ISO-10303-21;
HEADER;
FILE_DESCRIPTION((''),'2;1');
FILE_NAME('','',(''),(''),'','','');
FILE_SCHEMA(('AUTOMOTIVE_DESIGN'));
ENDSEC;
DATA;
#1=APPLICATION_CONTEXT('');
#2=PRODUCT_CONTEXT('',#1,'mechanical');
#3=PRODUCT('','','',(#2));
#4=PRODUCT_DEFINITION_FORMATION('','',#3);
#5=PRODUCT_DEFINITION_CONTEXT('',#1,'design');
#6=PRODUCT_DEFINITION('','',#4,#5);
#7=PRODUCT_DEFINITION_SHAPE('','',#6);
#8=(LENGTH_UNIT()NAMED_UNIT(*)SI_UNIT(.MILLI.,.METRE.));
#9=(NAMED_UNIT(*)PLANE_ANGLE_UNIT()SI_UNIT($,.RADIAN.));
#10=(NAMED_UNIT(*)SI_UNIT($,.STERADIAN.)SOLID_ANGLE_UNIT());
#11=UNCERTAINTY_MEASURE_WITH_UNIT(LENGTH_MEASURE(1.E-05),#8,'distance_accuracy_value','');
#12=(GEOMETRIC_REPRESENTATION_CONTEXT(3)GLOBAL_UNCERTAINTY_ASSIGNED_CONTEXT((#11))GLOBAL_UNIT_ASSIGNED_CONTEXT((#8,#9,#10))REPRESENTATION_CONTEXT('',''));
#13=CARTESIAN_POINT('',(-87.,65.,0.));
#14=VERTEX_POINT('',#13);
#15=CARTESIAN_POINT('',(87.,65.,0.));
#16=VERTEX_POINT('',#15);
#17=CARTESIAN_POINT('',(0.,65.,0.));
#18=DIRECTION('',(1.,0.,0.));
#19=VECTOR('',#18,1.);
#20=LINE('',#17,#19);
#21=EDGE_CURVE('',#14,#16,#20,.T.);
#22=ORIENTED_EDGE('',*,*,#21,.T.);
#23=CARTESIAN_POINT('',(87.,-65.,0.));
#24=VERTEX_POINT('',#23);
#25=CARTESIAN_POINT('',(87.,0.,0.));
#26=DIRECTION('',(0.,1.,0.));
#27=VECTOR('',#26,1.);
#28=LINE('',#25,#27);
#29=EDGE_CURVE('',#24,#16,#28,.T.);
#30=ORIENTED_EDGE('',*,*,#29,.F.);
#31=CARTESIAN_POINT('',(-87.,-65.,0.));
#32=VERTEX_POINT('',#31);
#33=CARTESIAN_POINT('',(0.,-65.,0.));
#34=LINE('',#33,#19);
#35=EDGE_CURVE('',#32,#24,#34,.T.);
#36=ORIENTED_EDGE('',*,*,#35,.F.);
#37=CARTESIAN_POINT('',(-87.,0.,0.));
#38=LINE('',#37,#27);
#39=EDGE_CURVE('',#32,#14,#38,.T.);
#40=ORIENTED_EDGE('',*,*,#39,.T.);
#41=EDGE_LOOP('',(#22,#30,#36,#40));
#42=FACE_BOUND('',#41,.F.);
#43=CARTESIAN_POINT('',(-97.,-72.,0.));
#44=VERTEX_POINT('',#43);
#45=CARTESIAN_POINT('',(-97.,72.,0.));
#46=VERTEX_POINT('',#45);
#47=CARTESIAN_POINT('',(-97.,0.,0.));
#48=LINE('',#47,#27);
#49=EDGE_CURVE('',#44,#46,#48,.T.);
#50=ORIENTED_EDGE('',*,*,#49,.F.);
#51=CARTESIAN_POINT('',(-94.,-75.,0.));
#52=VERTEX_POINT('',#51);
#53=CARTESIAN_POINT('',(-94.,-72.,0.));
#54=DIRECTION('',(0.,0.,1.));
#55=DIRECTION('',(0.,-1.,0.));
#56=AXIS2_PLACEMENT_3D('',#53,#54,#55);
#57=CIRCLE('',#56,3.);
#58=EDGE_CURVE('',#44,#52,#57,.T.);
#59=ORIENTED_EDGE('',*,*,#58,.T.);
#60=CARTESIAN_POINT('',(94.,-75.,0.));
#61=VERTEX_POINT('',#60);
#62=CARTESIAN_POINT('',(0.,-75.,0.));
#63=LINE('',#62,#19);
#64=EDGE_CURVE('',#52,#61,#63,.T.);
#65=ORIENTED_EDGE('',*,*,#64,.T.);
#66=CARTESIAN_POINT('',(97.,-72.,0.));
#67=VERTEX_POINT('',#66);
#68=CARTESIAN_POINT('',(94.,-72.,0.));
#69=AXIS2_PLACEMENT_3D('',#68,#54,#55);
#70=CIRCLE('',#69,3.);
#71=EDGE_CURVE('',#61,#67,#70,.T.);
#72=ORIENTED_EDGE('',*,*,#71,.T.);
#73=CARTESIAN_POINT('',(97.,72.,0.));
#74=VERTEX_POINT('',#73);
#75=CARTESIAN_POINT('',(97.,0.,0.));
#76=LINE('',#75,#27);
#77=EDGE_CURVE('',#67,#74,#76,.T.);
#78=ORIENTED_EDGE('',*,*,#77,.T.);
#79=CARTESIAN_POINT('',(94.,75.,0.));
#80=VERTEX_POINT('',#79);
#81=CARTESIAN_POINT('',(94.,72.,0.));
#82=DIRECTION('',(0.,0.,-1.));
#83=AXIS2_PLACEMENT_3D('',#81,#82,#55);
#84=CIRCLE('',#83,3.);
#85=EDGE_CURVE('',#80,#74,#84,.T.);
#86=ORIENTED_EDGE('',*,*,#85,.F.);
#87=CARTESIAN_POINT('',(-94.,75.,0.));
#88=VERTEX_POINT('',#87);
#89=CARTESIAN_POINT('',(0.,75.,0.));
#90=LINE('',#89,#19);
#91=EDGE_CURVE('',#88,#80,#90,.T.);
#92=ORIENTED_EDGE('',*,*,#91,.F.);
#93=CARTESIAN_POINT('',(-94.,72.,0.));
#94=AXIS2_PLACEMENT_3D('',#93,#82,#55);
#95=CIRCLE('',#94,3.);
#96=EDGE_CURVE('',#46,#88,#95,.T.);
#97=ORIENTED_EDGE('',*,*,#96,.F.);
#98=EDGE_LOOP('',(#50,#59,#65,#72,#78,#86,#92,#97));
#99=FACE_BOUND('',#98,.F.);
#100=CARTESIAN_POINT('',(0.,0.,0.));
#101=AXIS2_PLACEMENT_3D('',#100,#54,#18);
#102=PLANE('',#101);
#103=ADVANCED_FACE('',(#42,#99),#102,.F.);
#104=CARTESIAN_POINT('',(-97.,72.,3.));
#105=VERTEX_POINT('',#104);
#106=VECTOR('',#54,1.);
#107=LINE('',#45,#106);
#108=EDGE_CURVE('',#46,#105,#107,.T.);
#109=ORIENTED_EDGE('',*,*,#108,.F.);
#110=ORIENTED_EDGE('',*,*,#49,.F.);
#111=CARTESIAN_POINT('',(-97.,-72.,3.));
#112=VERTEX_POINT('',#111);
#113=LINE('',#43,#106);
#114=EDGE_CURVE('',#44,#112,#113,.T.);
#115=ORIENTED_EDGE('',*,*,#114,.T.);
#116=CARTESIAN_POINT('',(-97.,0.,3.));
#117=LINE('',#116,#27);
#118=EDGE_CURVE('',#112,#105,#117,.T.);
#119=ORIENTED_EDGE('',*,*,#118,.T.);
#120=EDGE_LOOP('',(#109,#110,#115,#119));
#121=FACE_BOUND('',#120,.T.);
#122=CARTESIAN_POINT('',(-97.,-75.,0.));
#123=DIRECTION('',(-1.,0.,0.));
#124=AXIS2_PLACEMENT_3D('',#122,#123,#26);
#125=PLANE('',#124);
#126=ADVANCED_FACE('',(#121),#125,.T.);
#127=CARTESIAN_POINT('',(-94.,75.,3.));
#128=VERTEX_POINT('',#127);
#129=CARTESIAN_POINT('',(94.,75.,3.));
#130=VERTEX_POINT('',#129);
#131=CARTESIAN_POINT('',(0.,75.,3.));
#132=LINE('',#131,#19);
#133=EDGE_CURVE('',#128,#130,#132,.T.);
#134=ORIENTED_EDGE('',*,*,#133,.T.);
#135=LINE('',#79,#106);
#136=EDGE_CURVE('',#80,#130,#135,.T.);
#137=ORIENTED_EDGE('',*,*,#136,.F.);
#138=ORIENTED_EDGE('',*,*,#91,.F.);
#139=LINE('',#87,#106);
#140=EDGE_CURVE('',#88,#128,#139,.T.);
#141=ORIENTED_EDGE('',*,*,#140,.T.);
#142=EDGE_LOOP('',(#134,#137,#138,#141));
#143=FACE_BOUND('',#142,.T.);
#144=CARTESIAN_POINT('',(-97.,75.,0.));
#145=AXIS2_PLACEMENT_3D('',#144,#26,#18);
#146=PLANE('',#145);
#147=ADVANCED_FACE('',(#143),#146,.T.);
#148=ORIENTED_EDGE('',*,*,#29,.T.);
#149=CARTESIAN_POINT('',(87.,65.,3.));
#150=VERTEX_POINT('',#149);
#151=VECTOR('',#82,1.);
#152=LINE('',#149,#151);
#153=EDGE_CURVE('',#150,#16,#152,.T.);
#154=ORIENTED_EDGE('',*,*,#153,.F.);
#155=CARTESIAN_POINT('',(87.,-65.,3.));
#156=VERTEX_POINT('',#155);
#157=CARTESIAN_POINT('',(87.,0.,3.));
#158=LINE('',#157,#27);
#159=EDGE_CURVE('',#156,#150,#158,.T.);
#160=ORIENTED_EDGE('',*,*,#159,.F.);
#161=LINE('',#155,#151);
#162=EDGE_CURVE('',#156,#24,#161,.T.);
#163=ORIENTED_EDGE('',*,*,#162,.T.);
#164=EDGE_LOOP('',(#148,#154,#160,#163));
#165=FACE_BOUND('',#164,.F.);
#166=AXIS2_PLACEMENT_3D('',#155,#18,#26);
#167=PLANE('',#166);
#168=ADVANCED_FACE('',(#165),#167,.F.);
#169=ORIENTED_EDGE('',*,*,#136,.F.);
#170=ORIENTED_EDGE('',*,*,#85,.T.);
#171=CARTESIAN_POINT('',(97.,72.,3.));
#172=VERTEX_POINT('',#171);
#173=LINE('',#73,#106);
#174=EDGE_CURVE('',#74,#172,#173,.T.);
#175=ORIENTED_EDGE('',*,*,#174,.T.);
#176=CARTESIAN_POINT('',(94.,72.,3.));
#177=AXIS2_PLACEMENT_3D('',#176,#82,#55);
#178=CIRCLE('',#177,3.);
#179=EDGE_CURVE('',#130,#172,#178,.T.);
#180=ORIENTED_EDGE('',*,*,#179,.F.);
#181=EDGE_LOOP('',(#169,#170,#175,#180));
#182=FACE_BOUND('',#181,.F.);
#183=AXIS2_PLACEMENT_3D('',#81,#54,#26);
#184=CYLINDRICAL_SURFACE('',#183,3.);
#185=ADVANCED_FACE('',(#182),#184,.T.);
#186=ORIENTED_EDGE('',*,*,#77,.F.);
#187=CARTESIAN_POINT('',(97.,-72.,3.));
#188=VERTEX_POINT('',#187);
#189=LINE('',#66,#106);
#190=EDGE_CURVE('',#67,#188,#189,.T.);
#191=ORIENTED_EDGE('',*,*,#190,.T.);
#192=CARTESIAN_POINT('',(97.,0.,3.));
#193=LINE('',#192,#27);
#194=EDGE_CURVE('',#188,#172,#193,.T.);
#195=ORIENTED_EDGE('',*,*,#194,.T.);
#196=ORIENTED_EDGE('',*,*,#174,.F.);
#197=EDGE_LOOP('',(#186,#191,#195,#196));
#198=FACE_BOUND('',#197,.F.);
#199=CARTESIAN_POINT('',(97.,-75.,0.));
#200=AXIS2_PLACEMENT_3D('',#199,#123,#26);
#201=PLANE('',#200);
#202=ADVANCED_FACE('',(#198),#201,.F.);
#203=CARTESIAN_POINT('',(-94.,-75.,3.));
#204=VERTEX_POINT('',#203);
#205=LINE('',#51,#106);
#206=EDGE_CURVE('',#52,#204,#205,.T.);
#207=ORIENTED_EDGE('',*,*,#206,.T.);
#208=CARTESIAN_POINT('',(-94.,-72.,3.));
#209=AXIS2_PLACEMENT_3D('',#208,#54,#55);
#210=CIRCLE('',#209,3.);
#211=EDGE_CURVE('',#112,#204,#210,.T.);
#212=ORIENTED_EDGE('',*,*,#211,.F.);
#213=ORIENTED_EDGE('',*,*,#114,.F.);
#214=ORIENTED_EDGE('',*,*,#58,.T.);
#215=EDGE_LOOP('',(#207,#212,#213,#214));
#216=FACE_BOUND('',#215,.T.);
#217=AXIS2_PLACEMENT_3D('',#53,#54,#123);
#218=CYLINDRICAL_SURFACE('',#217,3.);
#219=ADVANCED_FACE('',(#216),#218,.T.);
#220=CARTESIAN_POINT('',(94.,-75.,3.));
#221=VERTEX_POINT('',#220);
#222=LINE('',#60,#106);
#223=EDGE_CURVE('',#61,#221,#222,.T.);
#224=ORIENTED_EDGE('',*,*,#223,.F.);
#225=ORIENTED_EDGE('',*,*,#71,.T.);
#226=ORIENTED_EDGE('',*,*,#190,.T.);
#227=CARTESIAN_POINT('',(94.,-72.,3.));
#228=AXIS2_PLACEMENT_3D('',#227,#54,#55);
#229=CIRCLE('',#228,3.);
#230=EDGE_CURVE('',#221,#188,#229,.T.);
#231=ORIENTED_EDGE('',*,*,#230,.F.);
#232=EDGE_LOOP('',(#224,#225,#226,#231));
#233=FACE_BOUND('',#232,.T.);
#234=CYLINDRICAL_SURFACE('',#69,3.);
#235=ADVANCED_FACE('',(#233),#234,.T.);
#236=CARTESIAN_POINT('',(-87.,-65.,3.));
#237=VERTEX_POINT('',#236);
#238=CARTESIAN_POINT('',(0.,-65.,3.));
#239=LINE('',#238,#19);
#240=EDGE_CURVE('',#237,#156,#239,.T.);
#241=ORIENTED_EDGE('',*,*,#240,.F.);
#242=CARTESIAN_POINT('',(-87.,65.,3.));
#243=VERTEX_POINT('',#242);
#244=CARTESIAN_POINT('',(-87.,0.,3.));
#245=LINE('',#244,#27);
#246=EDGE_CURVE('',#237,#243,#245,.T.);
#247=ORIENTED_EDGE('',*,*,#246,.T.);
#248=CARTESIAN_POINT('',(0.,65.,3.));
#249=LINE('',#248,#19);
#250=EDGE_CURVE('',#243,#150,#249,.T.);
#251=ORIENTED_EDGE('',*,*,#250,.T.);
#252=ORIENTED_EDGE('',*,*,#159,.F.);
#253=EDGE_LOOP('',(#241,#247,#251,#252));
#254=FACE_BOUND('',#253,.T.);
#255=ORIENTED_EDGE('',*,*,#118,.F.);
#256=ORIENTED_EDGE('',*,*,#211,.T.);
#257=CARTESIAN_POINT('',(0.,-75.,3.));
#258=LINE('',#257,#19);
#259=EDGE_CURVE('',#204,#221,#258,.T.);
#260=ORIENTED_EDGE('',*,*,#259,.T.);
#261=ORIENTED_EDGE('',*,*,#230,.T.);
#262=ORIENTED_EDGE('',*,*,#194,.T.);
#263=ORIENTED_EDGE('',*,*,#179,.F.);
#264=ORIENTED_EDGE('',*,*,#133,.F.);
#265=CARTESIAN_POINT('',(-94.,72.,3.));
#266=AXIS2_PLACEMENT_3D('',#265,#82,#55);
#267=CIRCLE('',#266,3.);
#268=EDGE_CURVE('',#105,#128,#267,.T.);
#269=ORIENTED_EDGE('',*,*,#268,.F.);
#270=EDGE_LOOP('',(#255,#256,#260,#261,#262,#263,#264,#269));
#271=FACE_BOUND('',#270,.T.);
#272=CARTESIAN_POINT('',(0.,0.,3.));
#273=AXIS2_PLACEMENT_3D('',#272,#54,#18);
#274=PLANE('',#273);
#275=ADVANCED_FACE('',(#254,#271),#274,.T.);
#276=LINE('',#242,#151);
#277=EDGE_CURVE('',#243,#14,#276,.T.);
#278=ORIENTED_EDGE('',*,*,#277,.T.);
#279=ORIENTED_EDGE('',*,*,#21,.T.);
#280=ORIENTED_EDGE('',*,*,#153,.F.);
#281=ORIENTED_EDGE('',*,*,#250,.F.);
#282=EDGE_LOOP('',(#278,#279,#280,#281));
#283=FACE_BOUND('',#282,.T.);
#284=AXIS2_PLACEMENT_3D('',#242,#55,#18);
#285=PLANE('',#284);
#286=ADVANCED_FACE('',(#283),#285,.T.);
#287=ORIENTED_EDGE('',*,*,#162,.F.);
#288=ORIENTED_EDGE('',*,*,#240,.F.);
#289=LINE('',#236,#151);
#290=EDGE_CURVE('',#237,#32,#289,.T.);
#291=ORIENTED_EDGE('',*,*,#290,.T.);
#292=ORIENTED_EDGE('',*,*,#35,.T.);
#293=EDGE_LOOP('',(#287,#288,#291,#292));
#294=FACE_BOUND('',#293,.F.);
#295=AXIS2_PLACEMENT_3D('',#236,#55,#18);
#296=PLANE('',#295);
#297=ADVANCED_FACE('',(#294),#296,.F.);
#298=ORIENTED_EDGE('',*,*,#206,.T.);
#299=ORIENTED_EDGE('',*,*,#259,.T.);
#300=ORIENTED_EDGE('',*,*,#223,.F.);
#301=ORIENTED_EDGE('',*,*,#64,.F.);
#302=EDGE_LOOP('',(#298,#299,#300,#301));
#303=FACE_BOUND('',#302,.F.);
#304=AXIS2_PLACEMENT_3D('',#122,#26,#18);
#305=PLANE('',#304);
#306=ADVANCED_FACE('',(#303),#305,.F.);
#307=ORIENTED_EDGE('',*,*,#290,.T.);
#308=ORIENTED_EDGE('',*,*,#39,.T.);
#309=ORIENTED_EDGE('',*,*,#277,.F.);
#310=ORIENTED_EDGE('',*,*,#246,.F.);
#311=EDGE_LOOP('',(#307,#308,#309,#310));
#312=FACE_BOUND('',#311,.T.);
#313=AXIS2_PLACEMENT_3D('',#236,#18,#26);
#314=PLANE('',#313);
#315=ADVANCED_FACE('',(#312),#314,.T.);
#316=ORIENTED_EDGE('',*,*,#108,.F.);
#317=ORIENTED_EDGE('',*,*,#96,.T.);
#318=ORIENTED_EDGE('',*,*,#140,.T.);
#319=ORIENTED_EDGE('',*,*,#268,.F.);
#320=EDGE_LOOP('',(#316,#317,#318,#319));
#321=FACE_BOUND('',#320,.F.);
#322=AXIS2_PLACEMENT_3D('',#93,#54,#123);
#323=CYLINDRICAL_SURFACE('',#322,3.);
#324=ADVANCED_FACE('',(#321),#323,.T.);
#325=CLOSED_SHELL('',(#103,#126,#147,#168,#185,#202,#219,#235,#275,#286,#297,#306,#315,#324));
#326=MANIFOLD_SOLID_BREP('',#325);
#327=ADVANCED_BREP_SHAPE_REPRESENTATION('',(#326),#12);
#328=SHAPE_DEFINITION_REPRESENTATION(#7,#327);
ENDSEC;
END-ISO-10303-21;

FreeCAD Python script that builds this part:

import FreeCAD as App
import Part
import Sketcher

V = App.Vector
Q = App.Units.Quantity


def edges_at(feature, points):
    """Names of the edges that pass closest to the given points."""
    edges = feature.Shape.Edges
    near = lambda p: min(range(len(edges)), key=lambda i: edges[i].distToShape(Part.Vertex(*p))[0])
    return sorted({f"Edge{near(p) + 1}" for p in points})


def add_polygon(sketch, points):
    """Adds a closed chain of lines whose ends are joined by coincident constraints."""
    first, n = sketch.GeometryCount, len(points)
    for a, b in zip(points, points[1:] + points[:1]):
        sketch.addGeometry(Part.LineSegment(App.Vector(*a, 0), App.Vector(*b, 0)), False)
    for i in range(n):
        sketch.addConstraint(Sketcher.Constraint("Coincident", first + i, 2, first + (i + 1) % n, 1))

doc = App.newDocument("Part")
body = doc.addObject("PartDesign::Body", "Body")

# Sketch on XY plane
sketch1 = body.newObject("Sketcher::SketchObject", "Sketch")
sketch1.AttachmentSupport = (doc.getObject("XY_Plane"), [""])
sketch1.MapMode = "FlatFace"
add_polygon(sketch1, [(-97, 75), (-97, -75), (97, -75), (97, 75)])  # lines 0-3
sketch1.addConstraint([
    Sketcher.Constraint("Vertical", 0),
    Sketcher.Constraint("Horizontal", 1),
    Sketcher.Constraint("Vertical", 2),
    Sketcher.Constraint("Horizontal", 3),
    Sketcher.Constraint("Symmetric", 0, 2, 2, 2, -1, 1),
    Sketcher.Constraint("DistanceX", 1, 1, 1, 2, Q("194 mm")),
    Sketcher.Constraint("DistanceY", 0, 2, 0, 1, Q("150 mm")),
])
pad1 = body.newObject("PartDesign::Pad", "Pad")
pad1.Profile = sketch1
pad1.Length = 3

# Sketch on XY plane
sketch2 = body.newObject("Sketcher::SketchObject", "Sketch001")
sketch2.AttachmentSupport = (doc.getObject("XY_Plane"), [""])
sketch2.MapMode = "FlatFace"
sketch2.AttachmentOffset = App.Placement(V(0, 0, 3), App.Rotation())
add_polygon(sketch2, [(-87, 65), (-87, -65), (87, -65), (87, 65)])  # lines 0-3
sketch2.addConstraint([
    Sketcher.Constraint("Vertical", 0),
    Sketcher.Constraint("Horizontal", 1),
    Sketcher.Constraint("Vertical", 2),
    Sketcher.Constraint("Horizontal", 3),
    Sketcher.Constraint("Symmetric", 0, 2, 2, 2, -1, 1),
    Sketcher.Constraint("DistanceX", 1, 1, 1, 2, Q("174 mm")),
    Sketcher.Constraint("DistanceY", 0, 2, 0, 1, Q("130 mm")),
])
pocket1 = body.newObject("PartDesign::Pocket", "Pocket")
pocket1.Profile = sketch2
pocket1.Type = "ThroughAll"
doc.recompute()

fillet = body.newObject("PartDesign::Fillet", "Fillet")
fillet.Base = (pocket1, edges_at(pocket1, [
    (-97, -75, 1.5),
    (97, -75, 1.5),
    (97, 75, 1.5),
    (-97, 75, 1.5),
]))
fillet.Radius = 3

doc.recompute()
